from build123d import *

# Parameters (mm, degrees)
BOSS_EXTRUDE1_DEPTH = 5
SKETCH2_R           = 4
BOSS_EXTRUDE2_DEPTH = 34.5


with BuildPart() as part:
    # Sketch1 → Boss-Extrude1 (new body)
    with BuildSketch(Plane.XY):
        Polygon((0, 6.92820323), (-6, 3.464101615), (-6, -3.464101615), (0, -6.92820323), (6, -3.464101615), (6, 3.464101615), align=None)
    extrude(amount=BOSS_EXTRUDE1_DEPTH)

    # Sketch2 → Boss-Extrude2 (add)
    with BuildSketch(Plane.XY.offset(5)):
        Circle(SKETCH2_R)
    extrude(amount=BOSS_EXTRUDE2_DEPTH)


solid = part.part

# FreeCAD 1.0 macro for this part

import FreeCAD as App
import Part
import Sketcher
Q = App.Units.Quantity

doc = App.newDocument("Part")
body = doc.addObject("PartDesign::Body", "Body")

sketch1 = body.newObject("Sketcher::SketchObject", "Sketch")
sketch1.AttachmentSupport = (doc.getObject("XY_Plane"), [""])
sketch1.MapMode = "FlatFace"
sketch1.addGeometry([
    Part.LineSegment(App.Vector(0, 7, 0), App.Vector(-6, 3, 0)),
    Part.LineSegment(App.Vector(-6, 3, 0), App.Vector(-6, -3, 0)),
    Part.LineSegment(App.Vector(-6, -3, 0), App.Vector(0, -7, 0)),
    Part.LineSegment(App.Vector(0, -7, 0), App.Vector(6, -3, 0)),
    Part.LineSegment(App.Vector(6, -3, 0), App.Vector(6, 3, 0)),
    Part.LineSegment(App.Vector(6, 3, 0), App.Vector(0, 7, 0)),
], False)
sketch1.addConstraint([
    Sketcher.Constraint("Coincident", 0, 2, 1, 1),
    Sketcher.Constraint("Coincident", 1, 2, 2, 1),
    Sketcher.Constraint("Coincident", 2, 2, 3, 1),
    Sketcher.Constraint("Coincident", 3, 2, 4, 1),
    Sketcher.Constraint("Coincident", 4, 2, 5, 1),
    Sketcher.Constraint("Coincident", 5, 2, 0, 1),
    Sketcher.Constraint("Vertical", 1),
    Sketcher.Constraint("Vertical", 4),
    Sketcher.Constraint("Symmetric", 0, 2, 3, 2, -1, 1),
    Sketcher.Constraint("Symmetric", 2, 2, 5, 2, -1, 1),
    Sketcher.Constraint("PointOnObject", 2, 2, -2),
    Sketcher.Constraint("Parallel", 2, 5),
    Sketcher.Constraint("Horizontal", 1, 2, 3, 2),
    Sketcher.Constraint("Angle", 0, Q("-150 deg")),
    Sketcher.Constraint("DistanceX", 0, 2, -1, 1, Q("6 mm")),
    Sketcher.Constraint("DistanceY", -1, 1, 0, 2, Q("3.464102 mm")),
])
pad1 = body.newObject("PartDesign::Pad", "Pad")
pad1.Profile = sketch1
pad1.Length = 5

sketch2 = body.newObject("Sketcher::SketchObject", "Sketch001")
sketch2.AttachmentSupport = (doc.getObject("XY_Plane"), [""])
sketch2.MapMode = "FlatFace"
sketch2.AttachmentOffset = App.Placement(App.Vector(0, 0, 5), App.Rotation())
sketch2.addGeometry(Part.Circle(App.Vector(0, 0, 0), App.Vector(0, 0, 1), 4), False)
sketch2.addConstraint([
    Sketcher.Constraint("Coincident", 0, 3, -1, 1),
    Sketcher.Constraint("Diameter", 0, Q("8 mm")),
])
pad2 = body.newObject("PartDesign::Pad", "Pad001")
pad2.Profile = sketch2
pad2.Length = 34.5

doc.recompute()
